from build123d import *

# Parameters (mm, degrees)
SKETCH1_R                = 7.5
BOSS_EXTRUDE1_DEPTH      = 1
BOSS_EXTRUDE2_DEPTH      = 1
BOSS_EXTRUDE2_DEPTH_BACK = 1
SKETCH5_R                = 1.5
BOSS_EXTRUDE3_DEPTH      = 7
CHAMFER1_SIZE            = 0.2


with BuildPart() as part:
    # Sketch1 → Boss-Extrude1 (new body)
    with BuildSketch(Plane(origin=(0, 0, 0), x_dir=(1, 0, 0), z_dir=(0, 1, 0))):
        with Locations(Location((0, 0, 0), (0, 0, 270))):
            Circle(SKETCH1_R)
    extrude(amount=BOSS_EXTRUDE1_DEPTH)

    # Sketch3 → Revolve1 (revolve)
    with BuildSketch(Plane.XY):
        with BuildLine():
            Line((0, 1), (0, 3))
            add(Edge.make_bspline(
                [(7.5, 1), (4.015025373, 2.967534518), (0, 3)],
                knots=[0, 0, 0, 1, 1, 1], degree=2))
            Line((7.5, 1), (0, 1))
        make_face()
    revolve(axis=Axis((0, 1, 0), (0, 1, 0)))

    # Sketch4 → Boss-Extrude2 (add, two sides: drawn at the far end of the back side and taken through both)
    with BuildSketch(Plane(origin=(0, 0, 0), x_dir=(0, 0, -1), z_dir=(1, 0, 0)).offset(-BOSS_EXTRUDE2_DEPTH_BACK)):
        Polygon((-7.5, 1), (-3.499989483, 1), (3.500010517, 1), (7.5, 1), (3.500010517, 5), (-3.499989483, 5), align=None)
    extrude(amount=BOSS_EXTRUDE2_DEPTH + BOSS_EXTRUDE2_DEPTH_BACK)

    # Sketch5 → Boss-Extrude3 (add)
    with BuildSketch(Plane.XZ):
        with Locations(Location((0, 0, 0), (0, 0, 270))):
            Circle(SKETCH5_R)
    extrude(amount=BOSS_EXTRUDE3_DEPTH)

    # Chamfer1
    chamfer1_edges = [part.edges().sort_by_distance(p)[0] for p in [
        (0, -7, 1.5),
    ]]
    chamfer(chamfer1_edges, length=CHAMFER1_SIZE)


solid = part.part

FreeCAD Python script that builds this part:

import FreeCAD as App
import Part
import Sketcher
from FreeCAD import Vector
Q = App.Units.Quantity


def edges_at(feature, points):
    """Names of the edges that pass closest to the given points."""
    edges = feature.Shape.Edges
    near = lambda p: min(range(len(edges)), key=lambda i: edges[i].distToShape(Part.Vertex(*p))[0])
    return sorted({f"Edge{near(p) + 1}" for p in points})


def add_polygon(sketch, points):
    """Adds a closed chain of lines whose ends are joined by coincident constraints."""
    first, n = sketch.GeometryCount, len(points)
    for a, b in zip(points, points[1:] + points[:1]):
        sketch.addGeometry(Part.LineSegment(App.Vector(*a, 0), App.Vector(*b, 0)), False)
    for i in range(n):
        sketch.addConstraint(Sketcher.Constraint("Coincident", first + i, 2, first + (i + 1) % n, 1))

doc = App.newDocument("Part")
body = doc.addObject("PartDesign::Body", "Body")

sketch1 = doc.addObject("Sketcher::SketchObject", "Sketch")
body.addObject(sketch1)
sketch1.AttachmentSupport = (doc.XZ_Plane, [""])
sketch1.MapMode = "FlatFace"
sketch1.addGeometry(Part.Circle(Vector(0, 0, 0), Vector(0, 0, 1), 8), False)
sketch1.addConstraint(Sketcher.Constraint("Coincident", 0, 3, -1, 1))
sketch1.addConstraint(Sketcher.Constraint("Diameter", 0, Q("15 mm")))
pad1 = doc.addObject("PartDesign::Pad", "Pad")
body.addObject(pad1)
pad1.Profile = sketch1
pad1.Length = 1
pad1.Reversed = True

sketch2 = doc.addObject("Sketcher::SketchObject", "Sketch001")
body.addObject(sketch2)
sketch2.AttachmentSupport = (doc.XY_Plane, [""])
sketch2.MapMode = "FlatFace"
sketch2.addGeometry(Part.LineSegment(Vector(0, 3, 0), Vector(0, 1, 0)), False)
sketch2.addGeometry(Part.LineSegment(Vector(0, 1, 0), Vector(7.5, 1, 0)), False)
sketch2.addGeometry(Part.BSplineCurve([Vector(7.5, 1, 0), Vector(4.015025, 2.967535, 0), Vector(0, 3, 0)], [3, 3], [0, 1], False, 2, [1, 1, 1], False), False)
sketch2.addConstraint(Sketcher.Constraint("Block", 2))
sketch2.addConstraint(Sketcher.Constraint("Coincident", 0, 2, 1, 1))
sketch2.addConstraint(Sketcher.Constraint("Coincident", 1, 2, 2, 1))
sketch2.addConstraint(Sketcher.Constraint("Coincident", 2, 2, 0, 1))
sketch2.addConstraint(Sketcher.Constraint("Vertical", 0))
sketch2.addConstraint(Sketcher.Constraint("Horizontal", 1))
revolution = doc.addObject("PartDesign::Revolution", "Revolution")
body.addObject(revolution)
revolution.Profile = sketch2
revolution.ReferenceAxis = (sketch2, ["V_Axis"])
revolution.Angle = 360

sketch3 = doc.addObject("Sketcher::SketchObject", "Sketch002")
body.addObject(sketch3)
sketch3.AttachmentSupport = (doc.YZ_Plane, [""])
sketch3.MapMode = "FlatFace"
add_polygon(sketch3, [(1, 8), (1, -8), (5, -4), (5, 3)])
sketch3.addConstraint(Sketcher.Constraint("Vertical", 0))
sketch3.addConstraint(Sketcher.Constraint("Vertical", 2))
sketch3.addConstraint(Sketcher.Constraint("Perpendicular", 1, 3))
sketch3.addConstraint(Sketcher.Constraint("DistanceY", 0, 2, 0, 1, Q("15 mm")))
sketch3.addConstraint(Sketcher.Constraint("DistanceY", 2, 1, 2, 2, Q("7 mm")))
sketch3.addConstraint(Sketcher.Constraint("DistanceX", -1, 1, 0, 2, Q("1 mm")))
sketch3.addConstraint(Sketcher.Constraint("DistanceY", 0, 2, -1, 1, Q("7.5 mm")))
sketch3.addConstraint(Sketcher.Constraint("Distance", 3, Q("5.656862 mm")))
pad2 = doc.addObject("PartDesign::Pad", "Pad001")
body.addObject(pad2)
pad2.Profile = sketch3
pad2.Type = "TwoLengths"
pad2.Length = 1
pad2.Length2 = 1

sketch4 = doc.addObject("Sketcher::SketchObject", "Sketch003")
body.addObject(sketch4)
sketch4.AttachmentSupport = (doc.XZ_Plane, [""])
sketch4.MapMode = "FlatFace"
sketch4.addGeometry(Part.Circle(Vector(0, 0, 0), Vector(0, 0, 1), 1.5), False)
sketch4.addConstraint(Sketcher.Constraint("Coincident", 0, 3, -1, 1))
sketch4.addConstraint(Sketcher.Constraint("Diameter", 0, Q("3 mm")))
pad3 = doc.addObject("PartDesign::Pad", "Pad002")
body.addObject(pad3)
pad3.Profile = sketch4
pad3.Length = 7
doc.recompute()

chamfer = doc.addObject("PartDesign::Chamfer", "Chamfer")
body.addObject(chamfer)
chamfer.Base = (pad3, edges_at(pad3, [(0, -7, 1.5)]))
chamfer.Size = 0.2

doc.recompute()
